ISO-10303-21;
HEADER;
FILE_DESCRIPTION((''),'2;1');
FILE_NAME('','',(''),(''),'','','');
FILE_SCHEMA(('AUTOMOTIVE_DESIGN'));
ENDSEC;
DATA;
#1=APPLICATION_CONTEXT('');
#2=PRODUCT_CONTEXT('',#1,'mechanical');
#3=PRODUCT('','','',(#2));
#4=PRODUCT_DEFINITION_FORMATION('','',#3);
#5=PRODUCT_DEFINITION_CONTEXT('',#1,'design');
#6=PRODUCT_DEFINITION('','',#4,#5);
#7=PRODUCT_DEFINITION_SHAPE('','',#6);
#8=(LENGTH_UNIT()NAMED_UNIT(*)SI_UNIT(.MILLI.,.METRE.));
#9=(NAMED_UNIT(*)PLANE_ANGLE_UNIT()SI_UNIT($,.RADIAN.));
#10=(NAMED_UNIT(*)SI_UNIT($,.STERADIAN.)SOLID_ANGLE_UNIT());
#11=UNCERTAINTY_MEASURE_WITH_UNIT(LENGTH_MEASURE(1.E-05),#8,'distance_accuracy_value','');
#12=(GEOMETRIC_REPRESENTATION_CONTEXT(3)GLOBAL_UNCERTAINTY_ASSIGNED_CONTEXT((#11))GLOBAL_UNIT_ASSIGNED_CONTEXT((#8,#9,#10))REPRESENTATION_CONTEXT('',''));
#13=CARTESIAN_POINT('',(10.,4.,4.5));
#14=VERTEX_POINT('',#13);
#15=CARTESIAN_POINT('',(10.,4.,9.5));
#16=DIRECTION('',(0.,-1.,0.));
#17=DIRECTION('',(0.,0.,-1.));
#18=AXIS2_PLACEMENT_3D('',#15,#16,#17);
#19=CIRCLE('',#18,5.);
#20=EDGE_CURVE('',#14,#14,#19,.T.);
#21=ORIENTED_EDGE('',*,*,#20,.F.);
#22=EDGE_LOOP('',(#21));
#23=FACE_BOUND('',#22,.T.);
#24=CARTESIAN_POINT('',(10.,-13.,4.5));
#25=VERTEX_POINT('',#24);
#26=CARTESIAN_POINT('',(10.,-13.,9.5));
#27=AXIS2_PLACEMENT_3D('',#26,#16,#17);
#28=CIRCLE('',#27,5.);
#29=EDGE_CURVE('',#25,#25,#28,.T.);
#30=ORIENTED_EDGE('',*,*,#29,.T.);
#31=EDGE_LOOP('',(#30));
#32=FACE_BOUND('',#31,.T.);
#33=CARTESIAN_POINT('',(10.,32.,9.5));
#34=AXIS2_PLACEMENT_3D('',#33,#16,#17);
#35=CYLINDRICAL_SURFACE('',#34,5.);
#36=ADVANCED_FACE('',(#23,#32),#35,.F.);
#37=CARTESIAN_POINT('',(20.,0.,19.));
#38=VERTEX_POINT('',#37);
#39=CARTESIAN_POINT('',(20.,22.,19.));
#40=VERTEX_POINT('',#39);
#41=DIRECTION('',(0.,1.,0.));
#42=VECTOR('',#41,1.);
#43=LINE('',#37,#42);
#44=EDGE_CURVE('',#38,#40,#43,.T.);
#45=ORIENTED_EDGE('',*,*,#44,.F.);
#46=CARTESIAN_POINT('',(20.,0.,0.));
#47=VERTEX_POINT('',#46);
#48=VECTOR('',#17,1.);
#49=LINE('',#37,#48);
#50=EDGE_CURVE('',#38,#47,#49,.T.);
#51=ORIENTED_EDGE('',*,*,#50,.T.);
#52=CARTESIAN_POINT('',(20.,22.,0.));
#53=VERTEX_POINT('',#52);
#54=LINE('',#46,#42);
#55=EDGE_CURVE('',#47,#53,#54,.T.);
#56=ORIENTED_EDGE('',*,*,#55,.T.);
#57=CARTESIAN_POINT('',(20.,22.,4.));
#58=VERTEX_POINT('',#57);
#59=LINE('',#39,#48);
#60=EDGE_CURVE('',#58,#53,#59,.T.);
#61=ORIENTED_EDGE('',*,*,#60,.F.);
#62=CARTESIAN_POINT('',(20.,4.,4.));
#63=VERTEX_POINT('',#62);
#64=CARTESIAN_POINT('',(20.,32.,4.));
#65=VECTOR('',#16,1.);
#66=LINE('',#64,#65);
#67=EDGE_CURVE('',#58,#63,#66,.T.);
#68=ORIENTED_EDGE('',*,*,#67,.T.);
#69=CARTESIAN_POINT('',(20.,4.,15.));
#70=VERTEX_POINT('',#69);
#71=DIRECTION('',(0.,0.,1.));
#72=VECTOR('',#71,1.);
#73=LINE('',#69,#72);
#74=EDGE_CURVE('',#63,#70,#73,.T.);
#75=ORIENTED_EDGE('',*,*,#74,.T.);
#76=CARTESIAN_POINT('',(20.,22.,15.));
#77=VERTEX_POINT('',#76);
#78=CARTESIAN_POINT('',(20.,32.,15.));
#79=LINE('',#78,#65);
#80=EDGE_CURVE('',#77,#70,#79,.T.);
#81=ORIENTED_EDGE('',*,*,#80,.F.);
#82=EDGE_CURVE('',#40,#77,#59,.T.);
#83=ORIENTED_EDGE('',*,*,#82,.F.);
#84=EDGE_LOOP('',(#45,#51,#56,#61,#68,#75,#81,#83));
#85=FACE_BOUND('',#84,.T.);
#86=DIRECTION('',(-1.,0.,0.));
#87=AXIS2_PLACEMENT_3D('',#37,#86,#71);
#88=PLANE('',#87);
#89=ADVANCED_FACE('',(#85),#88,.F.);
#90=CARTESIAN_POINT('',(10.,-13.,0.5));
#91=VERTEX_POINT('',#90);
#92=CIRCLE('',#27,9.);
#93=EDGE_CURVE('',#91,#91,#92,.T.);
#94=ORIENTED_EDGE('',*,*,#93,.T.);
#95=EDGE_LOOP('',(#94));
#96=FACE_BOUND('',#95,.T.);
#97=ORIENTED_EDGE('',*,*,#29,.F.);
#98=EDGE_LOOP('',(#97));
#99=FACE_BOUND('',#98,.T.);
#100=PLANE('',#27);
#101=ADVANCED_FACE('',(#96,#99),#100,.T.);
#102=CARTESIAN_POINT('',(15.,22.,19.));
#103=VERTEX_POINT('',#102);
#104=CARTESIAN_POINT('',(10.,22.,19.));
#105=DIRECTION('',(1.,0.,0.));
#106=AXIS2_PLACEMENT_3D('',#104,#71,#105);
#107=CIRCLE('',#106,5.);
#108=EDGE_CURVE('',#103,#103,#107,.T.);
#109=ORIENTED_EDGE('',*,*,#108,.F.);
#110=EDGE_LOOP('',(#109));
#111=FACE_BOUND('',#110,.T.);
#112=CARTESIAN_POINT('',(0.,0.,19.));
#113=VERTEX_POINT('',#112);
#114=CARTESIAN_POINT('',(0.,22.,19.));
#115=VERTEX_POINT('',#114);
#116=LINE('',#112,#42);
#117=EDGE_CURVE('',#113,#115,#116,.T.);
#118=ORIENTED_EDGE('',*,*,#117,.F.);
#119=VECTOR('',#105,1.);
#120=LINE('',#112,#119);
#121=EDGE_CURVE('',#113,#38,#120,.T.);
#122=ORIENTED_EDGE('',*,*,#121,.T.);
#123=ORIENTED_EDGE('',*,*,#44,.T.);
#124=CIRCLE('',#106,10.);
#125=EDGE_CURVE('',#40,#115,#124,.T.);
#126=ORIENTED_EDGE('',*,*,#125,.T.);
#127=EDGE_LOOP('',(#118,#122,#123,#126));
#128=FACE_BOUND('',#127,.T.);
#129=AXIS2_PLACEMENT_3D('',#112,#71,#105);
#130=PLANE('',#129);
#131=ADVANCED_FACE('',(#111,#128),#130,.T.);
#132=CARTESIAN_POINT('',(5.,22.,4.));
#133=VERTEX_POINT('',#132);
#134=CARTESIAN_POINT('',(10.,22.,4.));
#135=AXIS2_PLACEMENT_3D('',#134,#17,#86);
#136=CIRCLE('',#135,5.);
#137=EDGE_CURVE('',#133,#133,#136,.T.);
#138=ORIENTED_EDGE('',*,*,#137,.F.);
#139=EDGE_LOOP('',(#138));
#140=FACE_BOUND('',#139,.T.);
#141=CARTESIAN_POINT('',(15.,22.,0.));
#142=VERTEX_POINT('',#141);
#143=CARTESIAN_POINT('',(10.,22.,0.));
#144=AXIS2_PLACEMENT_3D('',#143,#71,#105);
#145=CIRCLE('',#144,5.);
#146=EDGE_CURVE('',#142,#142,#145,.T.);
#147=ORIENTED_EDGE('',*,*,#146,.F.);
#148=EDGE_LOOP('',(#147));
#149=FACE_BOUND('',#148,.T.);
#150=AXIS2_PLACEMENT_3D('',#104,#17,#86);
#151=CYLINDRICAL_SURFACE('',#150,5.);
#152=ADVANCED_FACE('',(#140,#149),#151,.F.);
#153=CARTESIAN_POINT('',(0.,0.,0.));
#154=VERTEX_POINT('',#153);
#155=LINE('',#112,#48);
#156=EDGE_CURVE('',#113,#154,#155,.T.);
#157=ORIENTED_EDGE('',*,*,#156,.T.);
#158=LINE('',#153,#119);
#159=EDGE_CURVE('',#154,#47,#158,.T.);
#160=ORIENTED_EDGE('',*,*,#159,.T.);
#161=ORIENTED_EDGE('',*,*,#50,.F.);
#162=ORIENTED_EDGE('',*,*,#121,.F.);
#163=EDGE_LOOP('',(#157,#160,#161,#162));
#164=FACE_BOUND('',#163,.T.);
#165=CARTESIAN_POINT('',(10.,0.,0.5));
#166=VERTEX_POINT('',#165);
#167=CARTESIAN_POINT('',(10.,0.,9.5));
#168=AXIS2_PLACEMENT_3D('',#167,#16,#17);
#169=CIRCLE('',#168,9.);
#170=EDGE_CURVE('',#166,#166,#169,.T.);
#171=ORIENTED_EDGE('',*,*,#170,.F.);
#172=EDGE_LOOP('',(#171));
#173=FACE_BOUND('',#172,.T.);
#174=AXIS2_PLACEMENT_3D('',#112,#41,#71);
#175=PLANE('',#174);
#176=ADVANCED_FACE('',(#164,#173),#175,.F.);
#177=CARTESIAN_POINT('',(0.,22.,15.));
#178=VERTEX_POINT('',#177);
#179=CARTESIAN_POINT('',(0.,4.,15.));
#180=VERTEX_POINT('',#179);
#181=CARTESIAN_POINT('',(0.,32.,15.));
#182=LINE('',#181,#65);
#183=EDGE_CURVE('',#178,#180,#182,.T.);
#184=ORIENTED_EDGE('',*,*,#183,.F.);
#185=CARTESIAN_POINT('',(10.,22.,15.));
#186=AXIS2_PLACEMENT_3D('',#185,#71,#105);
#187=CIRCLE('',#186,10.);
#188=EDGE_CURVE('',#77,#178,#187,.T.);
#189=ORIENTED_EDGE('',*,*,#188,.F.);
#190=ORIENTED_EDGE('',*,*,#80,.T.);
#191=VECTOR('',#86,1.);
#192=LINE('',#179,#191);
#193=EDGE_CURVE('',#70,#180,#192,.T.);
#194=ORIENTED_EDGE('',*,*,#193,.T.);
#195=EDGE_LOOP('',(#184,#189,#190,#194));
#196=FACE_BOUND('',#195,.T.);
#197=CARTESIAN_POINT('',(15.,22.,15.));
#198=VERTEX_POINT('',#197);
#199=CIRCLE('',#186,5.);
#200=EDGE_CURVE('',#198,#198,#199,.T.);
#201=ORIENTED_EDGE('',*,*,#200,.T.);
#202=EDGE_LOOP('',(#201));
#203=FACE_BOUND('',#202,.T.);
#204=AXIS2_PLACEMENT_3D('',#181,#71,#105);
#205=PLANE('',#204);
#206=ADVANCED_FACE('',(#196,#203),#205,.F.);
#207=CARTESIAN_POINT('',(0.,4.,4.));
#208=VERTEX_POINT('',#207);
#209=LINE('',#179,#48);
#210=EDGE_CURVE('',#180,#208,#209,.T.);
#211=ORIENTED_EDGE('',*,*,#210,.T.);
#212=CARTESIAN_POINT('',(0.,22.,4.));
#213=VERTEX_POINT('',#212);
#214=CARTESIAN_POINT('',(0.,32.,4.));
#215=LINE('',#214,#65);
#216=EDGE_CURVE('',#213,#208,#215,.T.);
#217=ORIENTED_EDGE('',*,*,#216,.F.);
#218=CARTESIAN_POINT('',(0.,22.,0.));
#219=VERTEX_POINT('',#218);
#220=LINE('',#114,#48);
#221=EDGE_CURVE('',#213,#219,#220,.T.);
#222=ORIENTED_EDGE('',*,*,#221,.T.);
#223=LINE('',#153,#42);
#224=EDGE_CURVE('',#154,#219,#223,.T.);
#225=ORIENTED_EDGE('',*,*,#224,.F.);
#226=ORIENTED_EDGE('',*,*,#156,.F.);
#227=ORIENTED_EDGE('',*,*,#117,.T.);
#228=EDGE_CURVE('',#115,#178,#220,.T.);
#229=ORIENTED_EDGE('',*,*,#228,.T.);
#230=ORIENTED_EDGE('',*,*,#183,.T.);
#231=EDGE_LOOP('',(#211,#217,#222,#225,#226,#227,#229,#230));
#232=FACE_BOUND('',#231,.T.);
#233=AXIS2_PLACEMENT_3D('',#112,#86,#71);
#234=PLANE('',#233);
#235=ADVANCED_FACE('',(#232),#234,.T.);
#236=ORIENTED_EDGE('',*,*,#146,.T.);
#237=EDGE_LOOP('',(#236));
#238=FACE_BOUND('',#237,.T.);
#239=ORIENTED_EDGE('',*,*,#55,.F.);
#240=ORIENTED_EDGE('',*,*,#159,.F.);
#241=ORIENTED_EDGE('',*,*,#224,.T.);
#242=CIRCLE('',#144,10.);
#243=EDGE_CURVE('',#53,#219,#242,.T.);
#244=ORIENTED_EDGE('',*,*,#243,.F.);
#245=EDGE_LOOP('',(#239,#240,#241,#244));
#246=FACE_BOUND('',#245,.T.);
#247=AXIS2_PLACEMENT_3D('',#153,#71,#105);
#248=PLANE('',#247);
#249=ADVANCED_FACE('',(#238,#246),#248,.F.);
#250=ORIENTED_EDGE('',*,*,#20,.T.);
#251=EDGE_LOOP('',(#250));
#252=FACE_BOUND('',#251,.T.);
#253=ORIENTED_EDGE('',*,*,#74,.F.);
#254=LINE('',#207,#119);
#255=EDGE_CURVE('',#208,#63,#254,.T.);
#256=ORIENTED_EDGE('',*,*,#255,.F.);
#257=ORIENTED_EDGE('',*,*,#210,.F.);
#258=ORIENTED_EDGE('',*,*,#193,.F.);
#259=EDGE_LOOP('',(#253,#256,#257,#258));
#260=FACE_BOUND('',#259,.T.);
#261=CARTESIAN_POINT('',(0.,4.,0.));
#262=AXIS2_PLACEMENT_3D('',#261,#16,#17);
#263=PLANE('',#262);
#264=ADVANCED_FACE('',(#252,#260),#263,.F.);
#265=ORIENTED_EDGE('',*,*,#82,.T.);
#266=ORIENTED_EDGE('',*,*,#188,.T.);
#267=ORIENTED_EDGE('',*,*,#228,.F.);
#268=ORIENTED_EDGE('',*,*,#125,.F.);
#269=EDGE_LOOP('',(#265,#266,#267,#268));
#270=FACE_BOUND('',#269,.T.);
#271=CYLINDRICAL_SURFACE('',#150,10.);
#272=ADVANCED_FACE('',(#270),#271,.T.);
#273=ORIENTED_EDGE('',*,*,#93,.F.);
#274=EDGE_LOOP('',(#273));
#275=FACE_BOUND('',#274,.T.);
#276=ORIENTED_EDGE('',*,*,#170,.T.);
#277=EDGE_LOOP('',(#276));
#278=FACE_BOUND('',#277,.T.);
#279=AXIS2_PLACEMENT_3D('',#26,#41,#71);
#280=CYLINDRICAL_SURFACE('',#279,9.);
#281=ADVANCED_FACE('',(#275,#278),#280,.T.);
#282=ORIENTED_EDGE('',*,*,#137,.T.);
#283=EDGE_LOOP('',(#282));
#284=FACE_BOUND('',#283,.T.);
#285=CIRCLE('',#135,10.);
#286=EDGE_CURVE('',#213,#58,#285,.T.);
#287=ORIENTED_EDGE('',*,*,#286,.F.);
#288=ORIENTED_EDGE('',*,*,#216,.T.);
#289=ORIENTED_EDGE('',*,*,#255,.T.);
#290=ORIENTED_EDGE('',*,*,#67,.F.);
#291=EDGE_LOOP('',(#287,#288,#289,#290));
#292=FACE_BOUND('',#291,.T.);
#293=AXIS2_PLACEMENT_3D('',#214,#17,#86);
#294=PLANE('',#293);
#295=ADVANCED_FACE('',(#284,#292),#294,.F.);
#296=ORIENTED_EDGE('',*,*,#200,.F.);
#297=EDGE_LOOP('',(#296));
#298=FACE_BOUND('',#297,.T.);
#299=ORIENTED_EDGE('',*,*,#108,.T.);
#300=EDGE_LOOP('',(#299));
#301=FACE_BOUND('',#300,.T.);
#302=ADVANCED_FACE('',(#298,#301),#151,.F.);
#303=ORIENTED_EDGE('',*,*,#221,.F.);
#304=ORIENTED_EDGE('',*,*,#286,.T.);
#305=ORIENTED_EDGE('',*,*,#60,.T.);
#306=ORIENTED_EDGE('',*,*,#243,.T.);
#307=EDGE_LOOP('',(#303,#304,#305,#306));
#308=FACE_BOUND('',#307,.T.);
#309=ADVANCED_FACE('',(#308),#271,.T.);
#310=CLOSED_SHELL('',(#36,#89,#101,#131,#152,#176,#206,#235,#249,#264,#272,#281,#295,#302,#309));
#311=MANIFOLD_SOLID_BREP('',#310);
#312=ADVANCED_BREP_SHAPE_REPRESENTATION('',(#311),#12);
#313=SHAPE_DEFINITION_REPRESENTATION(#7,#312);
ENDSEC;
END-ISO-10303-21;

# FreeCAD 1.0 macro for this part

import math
import FreeCAD as App
import Part
import Sketcher
from FreeCAD import Vector

doc = App.newDocument("Part")
body = doc.addObject("PartDesign::Body", "Body")

# Sketch on XY plane
sketch1 = body.newObject("Sketcher::SketchObject", "Sketch")
sketch1.AttachmentSupport = (doc.getObject("XY_Plane"), [""])
sketch1.MapMode = "FlatFace"
sketch1.addGeometry([
    Part.LineSegment(Vector(0, 22, 0), Vector(0, 0, 0)),  # 0
    Part.LineSegment(Vector(0, 0, 0), Vector(20, 0, 0)),  # 1
    Part.LineSegment(Vector(20, 0, 0), Vector(20, 22, 0)),  # 2
    Part.ArcOfCircle(Part.Circle(Vector(10, 22, 0), Vector(0, 0, 1), 10), math.radians(0), math.radians(180)),  # 3
    Part.Circle(Vector(10, 22, 0), Vector(0, 0, 1), 5),  # 4
], False)
sketch1.addConstraint([
    Sketcher.Constraint("Coincident", 0, 2, 1, 1),
    Sketcher.Constraint("Coincident", 1, 2, 2, 1),
    Sketcher.Constraint("Tangent", 2, 2, 3, 1),
    Sketcher.Constraint("Tangent", 3, 2, 0, 1),
    Sketcher.Constraint("Vertical", 0),
    Sketcher.Constraint("Horizontal", 1),
    Sketcher.Constraint("Vertical", 2),
    Sketcher.Constraint("Coincident", 0, 2, -1, 1),
    Sketcher.Constraint("Coincident", 4, 3, 3, 3),
    Sketcher.Constraint("Diameter", 4, 10.0),
    Sketcher.Constraint("Radius", 3, 10.0),
    Sketcher.Constraint("DistanceY", 0, 2, 0, 1, 22.0),
])
pad1 = body.newObject("PartDesign::Pad", "Pad")
pad1.Profile = sketch1
pad1.Length = 19

# Sketch on XZ plane
sketch2 = body.newObject("Sketcher::SketchObject", "Sketch001")
sketch2.AttachmentSupport = (doc.getObject("XZ_Plane"), [""])
sketch2.MapMode = "FlatFace"
sketch2.AttachmentOffset = App.Placement(Vector(0, 0, -4), App.Rotation())
sketch2.addGeometry([
    Part.LineSegment(Vector(0, 15, 0), Vector(0, 4, 0)),
    Part.LineSegment(Vector(0, 4, 0), Vector(20, 4, 0)),
    Part.LineSegment(Vector(20, 4, 0), Vector(20, 15, 0)),
    Part.LineSegment(Vector(20, 15, 0), Vector(0, 15, 0)),
], False)
sketch2.addConstraint([
    Sketcher.Constraint("Coincident", 0, 2, 1, 1),
    Sketcher.Constraint("Coincident", 1, 2, 2, 1),
    Sketcher.Constraint("Coincident", 2, 2, 3, 1),
    Sketcher.Constraint("Coincident", 3, 2, 0, 1),
    Sketcher.Constraint("Vertical", 0),
    Sketcher.Constraint("Horizontal", 1),
    Sketcher.Constraint("Vertical", 2),
    Sketcher.Constraint("Horizontal", 3),
    Sketcher.Constraint("PointOnObject", 0, 2, -2),
    Sketcher.Constraint("DistanceX", 1, 1, 1, 2, 20.0),
    Sketcher.Constraint("DistanceY", 0, 2, 0, 1, 11.0),
    Sketcher.Constraint("DistanceY", -1, 1, 0, 2, 4.0),
])
pocket1 = body.newObject("PartDesign::Pocket", "Pocket")
pocket1.Profile = sketch2
pocket1.Type = "ThroughAll"

# Sketch on XZ plane
sketch3 = body.newObject("Sketcher::SketchObject", "Sketch002")
sketch3.AttachmentSupport = (doc.getObject("XZ_Plane"), [""])
sketch3.MapMode = "FlatFace"
sketch3.addGeometry(Part.Circle(Vector(10, 9.5, 0), Vector(0, 0, 1), 5), False)
sketch3.addConstraint([
    Sketcher.Constraint("Diameter", 0, 10.0),
    Sketcher.Constraint("DistanceX", -1, 1, 0, 3, 10.0),
    Sketcher.Constraint("DistanceY", -1, 1, 0, 3, 9.5),
])
pocket2 = body.newObject("PartDesign::Pocket", "Pocket001")
pocket2.Profile = sketch3
pocket2.Type = "ThroughAll"

# Sketch on XZ plane
sketch4 = body.newObject("Sketcher::SketchObject", "Sketch003")
sketch4.AttachmentSupport = (doc.getObject("XZ_Plane"), [""])
sketch4.MapMode = "FlatFace"
sketch4.AttachmentOffset = App.Placement(Vector(0, 0, 13), App.Rotation())
sketch4.addGeometry([
    Part.Circle(Vector(10, 9.5, 0), Vector(0, 0, 1), 9),
    Part.Circle(Vector(10, 9.5, 0), Vector(0, 0, 1), 5),
], False)
sketch4.addConstraint([
    Sketcher.Constraint("Coincident", 1, 3, 0, 3),
    Sketcher.Constraint("Diameter", 0, 18.0),
    Sketcher.Constraint("Diameter", 1, 10.0),
    Sketcher.Constraint("DistanceX", -1, 1, 0, 3, 10.0),
    Sketcher.Constraint("DistanceY", -1, 1, 0, 3, 9.5),
])
pad2 = body.newObject("PartDesign::Pad", "Pad001")
pad2.Profile = sketch4
pad2.Length = 13
pad2.Reversed = True

doc.recompute()
